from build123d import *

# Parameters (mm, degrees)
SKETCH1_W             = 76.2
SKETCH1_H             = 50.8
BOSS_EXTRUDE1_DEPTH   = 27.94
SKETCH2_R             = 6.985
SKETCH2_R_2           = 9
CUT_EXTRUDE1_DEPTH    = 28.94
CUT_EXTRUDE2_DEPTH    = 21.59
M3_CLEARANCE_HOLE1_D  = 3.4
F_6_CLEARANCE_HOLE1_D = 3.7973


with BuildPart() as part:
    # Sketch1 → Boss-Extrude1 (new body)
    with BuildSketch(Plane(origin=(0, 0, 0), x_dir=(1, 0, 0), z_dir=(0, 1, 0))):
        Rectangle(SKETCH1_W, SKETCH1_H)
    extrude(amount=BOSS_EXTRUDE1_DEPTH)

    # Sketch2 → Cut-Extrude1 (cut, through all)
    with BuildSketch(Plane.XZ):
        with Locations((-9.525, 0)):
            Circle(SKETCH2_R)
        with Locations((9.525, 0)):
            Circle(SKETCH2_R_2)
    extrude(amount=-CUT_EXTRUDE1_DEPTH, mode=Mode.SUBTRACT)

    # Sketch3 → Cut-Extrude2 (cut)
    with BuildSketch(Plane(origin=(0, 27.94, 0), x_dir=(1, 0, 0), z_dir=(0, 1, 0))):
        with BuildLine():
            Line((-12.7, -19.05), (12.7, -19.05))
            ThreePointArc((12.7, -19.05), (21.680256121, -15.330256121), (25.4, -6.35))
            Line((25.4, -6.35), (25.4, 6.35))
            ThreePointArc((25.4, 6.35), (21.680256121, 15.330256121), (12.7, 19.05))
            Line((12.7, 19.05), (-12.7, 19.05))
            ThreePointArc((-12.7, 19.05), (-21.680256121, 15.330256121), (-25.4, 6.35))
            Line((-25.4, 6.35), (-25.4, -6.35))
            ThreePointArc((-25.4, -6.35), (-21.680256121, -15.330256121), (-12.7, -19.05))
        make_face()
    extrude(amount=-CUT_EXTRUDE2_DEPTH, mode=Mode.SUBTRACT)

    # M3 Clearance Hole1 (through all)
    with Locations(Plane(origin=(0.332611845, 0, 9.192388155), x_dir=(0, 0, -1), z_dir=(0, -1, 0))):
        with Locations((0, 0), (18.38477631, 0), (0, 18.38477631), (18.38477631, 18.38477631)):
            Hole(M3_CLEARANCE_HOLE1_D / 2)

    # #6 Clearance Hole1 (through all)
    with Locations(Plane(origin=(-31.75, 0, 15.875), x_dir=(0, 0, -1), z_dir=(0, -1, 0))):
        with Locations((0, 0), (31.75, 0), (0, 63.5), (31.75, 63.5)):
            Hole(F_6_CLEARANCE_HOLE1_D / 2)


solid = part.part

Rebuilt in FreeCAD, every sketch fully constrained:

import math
import FreeCAD as App
import Part
import Sketcher
from FreeCAD import Vector
Q = App.Units.Quantity

doc = App.newDocument("Part")
params = doc.addObject("Spreadsheet::Sheet", "Params")
for row, (alias, value) in enumerate([
    ("sketch1_width", "3 in"),
    ("sketch1_height", "2 in"),
    ("pad1_length", "1.1 in"),
    ("sketch2_diameter", "0.55 in"),
    ("sketch3_radius", "0.5 in"),
    ("sketch3_width", "1 in"),
    ("sketch3_height", "0.5 in"),
    ("pocket2_length", "0.85 in"),
    ("hole_diameter", "3.4 mm"),
    ("hole2_diameter", "0.1495 in"),
], start=1):
    params.set(f"A{row}", alias)
    params.set(f"B{row}", "=" + value)
    params.setAlias(f"B{row}", alias)

body = doc.addObject("PartDesign::Body", "Body")

sketch1 = body.newObject("Sketcher::SketchObject", "Sketch")
sketch1.AttachmentSupport = (doc.getObject("XZ_Plane"), [""])
sketch1.MapMode = "FlatFace"
sketch1.addGeometry([
    Part.LineSegment(Vector(-38, -25, 0), Vector(-38, 25, 0)),
    Part.LineSegment(Vector(-38, 25, 0), Vector(38, 25, 0)),
    Part.LineSegment(Vector(38, 25, 0), Vector(38, -25, 0)),
    Part.LineSegment(Vector(38, -25, 0), Vector(-38, -25, 0)),
], False)
sketch1.addConstraint([
    Sketcher.Constraint("Coincident", 0, 2, 1, 1),
    Sketcher.Constraint("Coincident", 1, 2, 2, 1),
    Sketcher.Constraint("Coincident", 2, 2, 3, 1),
    Sketcher.Constraint("Coincident", 3, 2, 0, 1),
    Sketcher.Constraint("Vertical", 0),
    Sketcher.Constraint("Horizontal", 1),
    Sketcher.Constraint("Vertical", 2),
    Sketcher.Constraint("Horizontal", 3),
    Sketcher.Constraint("Symmetric", 0, 2, 2, 2, -1, 1),
    Sketcher.Constraint("DistanceX", 1, 1, 1, 2, Q("3 in")),
    Sketcher.Constraint("DistanceY", 0, 1, 0, 2, Q("2 in")),
])
sketch1.setExpression("Constraints[9]", "Params.sketch1_width")
sketch1.setExpression("Constraints[10]", "Params.sketch1_height")
pad1 = body.newObject("PartDesign::Pad", "Pad")
pad1.Profile = sketch1
pad1.setExpression("Length", "Params.pad1_length")
pad1.Reversed = True

sketch2 = body.newObject("Sketcher::SketchObject", "Sketch001")
sketch2.AttachmentSupport = (doc.getObject("XZ_Plane"), [""])
sketch2.MapMode = "FlatFace"
sketch2.addGeometry([
    Part.Circle(Vector(-10, 0, 0), Vector(0, 0, 1), 7),
    Part.Circle(Vector(10, 0, 0), Vector(0, 0, 1), 9),
], False)
sketch2.addConstraint([
    Sketcher.Constraint("Symmetric", 0, 3, 1, 3, -1, 1),
    Sketcher.Constraint("PointOnObject", 0, 3, -1),
    Sketcher.Constraint("Diameter", 0, Q("0.55 in")),
    Sketcher.Constraint("Diameter", 1, 18.0),
    Sketcher.Constraint("DistanceX", 0, 3, 1, 3, Q("0.75 in")),
])
sketch2.setExpression("Constraints[2]", "Params.sketch2_diameter")
pocket1 = body.newObject("PartDesign::Pocket", "Pocket")
pocket1.Profile = sketch2
pocket1.Type = "ThroughAll"

sketch3 = body.newObject("Sketcher::SketchObject", "Sketch002")
sketch3.AttachmentSupport = (doc.getObject("XZ_Plane"), [""])
sketch3.MapMode = "FlatFace"
sketch3.AttachmentOffset = App.Placement(Vector(0, 0, -1.1 * 25.4), App.Rotation())
sketch3.addGeometry([
    Part.LineSegment(Vector(-13, 19, 0), Vector(13, 19, 0)),
    Part.ArcOfCircle(Part.Circle(Vector(13, 6, 0), Vector(0, 0, 1), 13), math.radians(0), math.radians(90)),
    Part.LineSegment(Vector(25, 6, 0), Vector(25, -6, 0)),
    Part.ArcOfCircle(Part.Circle(Vector(13, -6, 0), Vector(0, 0, 1), 13), math.radians(-90), math.radians(0)),
    Part.LineSegment(Vector(13, -19, 0), Vector(-13, -19, 0)),
    Part.ArcOfCircle(Part.Circle(Vector(-13, -6, 0), Vector(0, 0, 1), 13), math.radians(180), math.radians(270)),
    Part.LineSegment(Vector(-25, -6, 0), Vector(-25, 6, 0)),
    Part.ArcOfCircle(Part.Circle(Vector(-13, 6, 0), Vector(0, 0, 1), 13), math.radians(90), math.radians(180)),
], False)
sketch3.addConstraint([
    Sketcher.Constraint("Tangent", 0, 2, 1, 2),
    Sketcher.Constraint("Tangent", 1, 1, 2, 1),
    Sketcher.Constraint("Tangent", 2, 2, 3, 2),
    Sketcher.Constraint("Tangent", 3, 1, 4, 1),
    Sketcher.Constraint("Tangent", 4, 2, 5, 2),
    Sketcher.Constraint("Tangent", 5, 1, 6, 1),
    Sketcher.Constraint("Tangent", 6, 2, 7, 2),
    Sketcher.Constraint("Tangent", 7, 1, 0, 1),
    Sketcher.Constraint("Horizontal", 0),
    Sketcher.Constraint("Vertical", 2),
    Sketcher.Constraint("Horizontal", 4),
    Sketcher.Constraint("Vertical", 6),
    Sketcher.Constraint("Equal", 1, 3),
    Sketcher.Constraint("Equal", 3, 5),
    Sketcher.Constraint("Equal", 5, 7),
    Sketcher.Constraint("Symmetric", 1, 3, 5, 3, -1, 1),
    Sketcher.Constraint("Radius", 1, Q("0.5 in")),
    Sketcher.Constraint("DistanceX", 0, 1, 0, 2, Q("1 in")),
    Sketcher.Constraint("DistanceY", 2, 2, 2, 1, Q("0.5 in")),
])
sketch3.setExpression("Constraints[16]", "Params.sketch3_radius")
sketch3.setExpression("Constraints[17]", "Params.sketch3_width")
sketch3.setExpression("Constraints[18]", "Params.sketch3_height")
pocket2 = body.newObject("PartDesign::Pocket", "Pocket001")
pocket2.Profile = sketch3
pocket2.setExpression("Length", "Params.pocket2_length")
pocket2.Reversed = True

sketch4 = body.newObject("Sketcher::SketchObject", "Sketch003")
sketch4.AttachmentSupport = (doc.getObject("XZ_Plane"), [""])
sketch4.MapMode = "FlatFace"
sketch4.addGeometry([
    Part.Circle(Vector(0.3, 9.2, 0), Vector(0, 0, 1), 1.7),
    Part.Circle(Vector(0.3, -9.2, 0), Vector(0, 0, 1), 1.7),
    Part.Circle(Vector(18.7, 9.2, 0), Vector(0, 0, 1), 1.7),
    Part.Circle(Vector(18.7, -9.2, 0), Vector(0, 0, 1), 1.7),
], False)
sketch4.addConstraint([
    Sketcher.Constraint("Equal", 0, 1),
    Sketcher.Constraint("Equal", 1, 2),
    Sketcher.Constraint("Equal", 2, 3),
    Sketcher.Constraint("Symmetric", 0, 3, 1, 3, -1),
    Sketcher.Constraint("Symmetric", 2, 3, 3, 3, -1),
    Sketcher.Constraint("Horizontal", 0, 3, 2, 3),
    Sketcher.Constraint("Diameter", 0, 3.4),
    Sketcher.Constraint("DistanceX", -1, 1, 0, 3, 0.332612),
    Sketcher.Constraint("DistanceY", -1, 1, 0, 3, 9.192388),
    Sketcher.Constraint("DistanceX", -1, 1, 2, 3, 18.717388),
])
doc.recompute()
hole = body.newObject("PartDesign::Hole", "Hole")
hole.Profile = sketch4
hole.ThreadType = "None"
hole.setExpression("Diameter", "Params.hole_diameter")
hole.DepthType = "ThroughAll"

sketch5 = body.newObject("Sketcher::SketchObject", "Sketch004")
sketch5.AttachmentSupport = (doc.getObject("XZ_Plane"), [""])
sketch5.MapMode = "FlatFace"
sketch5.addGeometry([
    Part.Circle(Vector(-31.8, 15.9, 0), Vector(0, 0, 1), 1.9),
    Part.Circle(Vector(-31.8, -15.9, 0), Vector(0, 0, 1), 1.9),
    Part.Circle(Vector(31.8, 15.9, 0), Vector(0, 0, 1), 1.9),
    Part.Circle(Vector(31.8, -15.9, 0), Vector(0, 0, 1), 1.9),
], False)
sketch5.addConstraint([
    Sketcher.Constraint("Equal", 0, 1),
    Sketcher.Constraint("Equal", 1, 2),
    Sketcher.Constraint("Equal", 2, 3),
    Sketcher.Constraint("Symmetric", 1, 3, 2, 3, -1, 1),
    Sketcher.Constraint("Symmetric", 0, 3, 3, 3, -1, 1),
    Sketcher.Constraint("Symmetric", 0, 3, 2, 3, -2),
    Sketcher.Constraint("Diameter", 0, Q("0.1495 in")),
    Sketcher.Constraint("DistanceX", 0, 3, 2, 3, Q("2.5 in")),
    Sketcher.Constraint("DistanceY", 1, 3, 0, 3, Q("1.25 in")),
])
doc.recompute()
hole2 = body.newObject("PartDesign::Hole", "Hole001")
hole2.Profile = sketch5
hole2.ThreadType = "None"
hole2.setExpression("Diameter", "Params.hole2_diameter")
hole2.DepthType = "ThroughAll"

doc.recompute()
